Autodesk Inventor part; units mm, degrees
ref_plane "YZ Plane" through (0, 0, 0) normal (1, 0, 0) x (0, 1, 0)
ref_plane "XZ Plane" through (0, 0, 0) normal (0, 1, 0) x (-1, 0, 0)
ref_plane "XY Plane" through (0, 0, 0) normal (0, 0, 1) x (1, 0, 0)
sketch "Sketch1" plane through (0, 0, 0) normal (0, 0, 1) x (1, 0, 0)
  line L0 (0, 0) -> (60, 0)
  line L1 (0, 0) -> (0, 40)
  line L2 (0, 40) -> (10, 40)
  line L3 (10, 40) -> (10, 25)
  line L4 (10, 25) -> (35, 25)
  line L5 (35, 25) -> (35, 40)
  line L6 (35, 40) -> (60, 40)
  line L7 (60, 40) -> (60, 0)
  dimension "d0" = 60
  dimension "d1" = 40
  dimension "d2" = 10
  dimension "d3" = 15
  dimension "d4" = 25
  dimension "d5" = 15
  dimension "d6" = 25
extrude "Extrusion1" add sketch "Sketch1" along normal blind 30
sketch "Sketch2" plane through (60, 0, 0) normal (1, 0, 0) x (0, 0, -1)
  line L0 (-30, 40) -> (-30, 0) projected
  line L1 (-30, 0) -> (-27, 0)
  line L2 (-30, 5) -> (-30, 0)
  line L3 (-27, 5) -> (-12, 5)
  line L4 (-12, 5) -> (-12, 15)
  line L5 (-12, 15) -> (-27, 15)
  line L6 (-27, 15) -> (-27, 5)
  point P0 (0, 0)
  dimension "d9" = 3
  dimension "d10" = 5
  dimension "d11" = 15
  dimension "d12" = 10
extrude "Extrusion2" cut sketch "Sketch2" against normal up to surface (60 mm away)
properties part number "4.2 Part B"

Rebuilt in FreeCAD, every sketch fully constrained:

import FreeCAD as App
import Part
import Sketcher
Q = App.Units.Quantity


def add_polygon(sketch, points):
    """Adds a closed chain of lines whose ends are joined by coincident constraints."""
    first, n = sketch.GeometryCount, len(points)
    for a, b in zip(points, points[1:] + points[:1]):
        sketch.addGeometry(Part.LineSegment(App.Vector(*a, 0), App.Vector(*b, 0)), False)
    for i in range(n):
        sketch.addConstraint(Sketcher.Constraint("Coincident", first + i, 2, first + (i + 1) % n, 1))

doc = App.newDocument("Part")
body = doc.addObject("PartDesign::Body", "Body")

sketch1 = body.newObject("Sketcher::SketchObject", "Sketch")
sketch1.AttachmentSupport = (doc.getObject("XY_Plane"), [""])
sketch1.MapMode = "FlatFace"
add_polygon(sketch1, [(0, 40), (0, 0), (60, 0), (60, 40), (35, 40), (35, 25), (10, 25), (10, 40)])
sketch1.addConstraint(Sketcher.Constraint("Vertical", 0))
sketch1.addConstraint(Sketcher.Constraint("Horizontal", 1))
sketch1.addConstraint(Sketcher.Constraint("Vertical", 2))
sketch1.addConstraint(Sketcher.Constraint("Horizontal", 3))
sketch1.addConstraint(Sketcher.Constraint("Vertical", 4))
sketch1.addConstraint(Sketcher.Constraint("Horizontal", 5))
sketch1.addConstraint(Sketcher.Constraint("Vertical", 6))
sketch1.addConstraint(Sketcher.Constraint("Horizontal", 7))
sketch1.addConstraint(Sketcher.Constraint("Coincident", 0, 2, -1, 1))
sketch1.addConstraint(Sketcher.Constraint("Horizontal", 3, 2, 6, 2))
sketch1.addConstraint(Sketcher.Constraint("Equal", 3, 5))
sketch1.addConstraint(Sketcher.Constraint("DistanceX", 1, 1, 1, 2, Q("60 mm")))
sketch1.addConstraint(Sketcher.Constraint("DistanceX", 3, 2, 3, 1, Q("25 mm")))
sketch1.addConstraint(Sketcher.Constraint("DistanceY", 0, 2, 0, 1, Q("40 mm")))
sketch1.addConstraint(Sketcher.Constraint("DistanceY", 4, 2, 4, 1, Q("15 mm")))
pad1 = body.newObject("PartDesign::Pad", "Pad")
pad1.Profile = sketch1
pad1.Length = 30

sketch2 = body.newObject("Sketcher::SketchObject", "Sketch001")
sketch2.AttachmentSupport = (doc.getObject("YZ_Plane"), [""])
sketch2.MapMode = "FlatFace"
sketch2.AttachmentOffset = App.Placement(App.Vector(0, 0, 60), App.Rotation())
add_polygon(sketch2, [(15, 27), (5, 27), (5, 12), (15, 12)])
sketch2.addConstraint(Sketcher.Constraint("Horizontal", 0))
sketch2.addConstraint(Sketcher.Constraint("Vertical", 1))
sketch2.addConstraint(Sketcher.Constraint("Horizontal", 2))
sketch2.addConstraint(Sketcher.Constraint("Vertical", 3))
sketch2.addConstraint(Sketcher.Constraint("DistanceX", 0, 2, 0, 1, Q("10 mm")))
sketch2.addConstraint(Sketcher.Constraint("DistanceY", 1, 2, 1, 1, Q("15 mm")))
sketch2.addConstraint(Sketcher.Constraint("DistanceX", -1, 1, 0, 2, Q("5 mm")))
sketch2.addConstraint(Sketcher.Constraint("DistanceY", -1, 1, 0, 2, Q("27 mm")))
pocket1 = body.newObject("PartDesign::Pocket", "Pocket")
pocket1.Profile = sketch2
pocket1.Length = 60

doc.recompute()
